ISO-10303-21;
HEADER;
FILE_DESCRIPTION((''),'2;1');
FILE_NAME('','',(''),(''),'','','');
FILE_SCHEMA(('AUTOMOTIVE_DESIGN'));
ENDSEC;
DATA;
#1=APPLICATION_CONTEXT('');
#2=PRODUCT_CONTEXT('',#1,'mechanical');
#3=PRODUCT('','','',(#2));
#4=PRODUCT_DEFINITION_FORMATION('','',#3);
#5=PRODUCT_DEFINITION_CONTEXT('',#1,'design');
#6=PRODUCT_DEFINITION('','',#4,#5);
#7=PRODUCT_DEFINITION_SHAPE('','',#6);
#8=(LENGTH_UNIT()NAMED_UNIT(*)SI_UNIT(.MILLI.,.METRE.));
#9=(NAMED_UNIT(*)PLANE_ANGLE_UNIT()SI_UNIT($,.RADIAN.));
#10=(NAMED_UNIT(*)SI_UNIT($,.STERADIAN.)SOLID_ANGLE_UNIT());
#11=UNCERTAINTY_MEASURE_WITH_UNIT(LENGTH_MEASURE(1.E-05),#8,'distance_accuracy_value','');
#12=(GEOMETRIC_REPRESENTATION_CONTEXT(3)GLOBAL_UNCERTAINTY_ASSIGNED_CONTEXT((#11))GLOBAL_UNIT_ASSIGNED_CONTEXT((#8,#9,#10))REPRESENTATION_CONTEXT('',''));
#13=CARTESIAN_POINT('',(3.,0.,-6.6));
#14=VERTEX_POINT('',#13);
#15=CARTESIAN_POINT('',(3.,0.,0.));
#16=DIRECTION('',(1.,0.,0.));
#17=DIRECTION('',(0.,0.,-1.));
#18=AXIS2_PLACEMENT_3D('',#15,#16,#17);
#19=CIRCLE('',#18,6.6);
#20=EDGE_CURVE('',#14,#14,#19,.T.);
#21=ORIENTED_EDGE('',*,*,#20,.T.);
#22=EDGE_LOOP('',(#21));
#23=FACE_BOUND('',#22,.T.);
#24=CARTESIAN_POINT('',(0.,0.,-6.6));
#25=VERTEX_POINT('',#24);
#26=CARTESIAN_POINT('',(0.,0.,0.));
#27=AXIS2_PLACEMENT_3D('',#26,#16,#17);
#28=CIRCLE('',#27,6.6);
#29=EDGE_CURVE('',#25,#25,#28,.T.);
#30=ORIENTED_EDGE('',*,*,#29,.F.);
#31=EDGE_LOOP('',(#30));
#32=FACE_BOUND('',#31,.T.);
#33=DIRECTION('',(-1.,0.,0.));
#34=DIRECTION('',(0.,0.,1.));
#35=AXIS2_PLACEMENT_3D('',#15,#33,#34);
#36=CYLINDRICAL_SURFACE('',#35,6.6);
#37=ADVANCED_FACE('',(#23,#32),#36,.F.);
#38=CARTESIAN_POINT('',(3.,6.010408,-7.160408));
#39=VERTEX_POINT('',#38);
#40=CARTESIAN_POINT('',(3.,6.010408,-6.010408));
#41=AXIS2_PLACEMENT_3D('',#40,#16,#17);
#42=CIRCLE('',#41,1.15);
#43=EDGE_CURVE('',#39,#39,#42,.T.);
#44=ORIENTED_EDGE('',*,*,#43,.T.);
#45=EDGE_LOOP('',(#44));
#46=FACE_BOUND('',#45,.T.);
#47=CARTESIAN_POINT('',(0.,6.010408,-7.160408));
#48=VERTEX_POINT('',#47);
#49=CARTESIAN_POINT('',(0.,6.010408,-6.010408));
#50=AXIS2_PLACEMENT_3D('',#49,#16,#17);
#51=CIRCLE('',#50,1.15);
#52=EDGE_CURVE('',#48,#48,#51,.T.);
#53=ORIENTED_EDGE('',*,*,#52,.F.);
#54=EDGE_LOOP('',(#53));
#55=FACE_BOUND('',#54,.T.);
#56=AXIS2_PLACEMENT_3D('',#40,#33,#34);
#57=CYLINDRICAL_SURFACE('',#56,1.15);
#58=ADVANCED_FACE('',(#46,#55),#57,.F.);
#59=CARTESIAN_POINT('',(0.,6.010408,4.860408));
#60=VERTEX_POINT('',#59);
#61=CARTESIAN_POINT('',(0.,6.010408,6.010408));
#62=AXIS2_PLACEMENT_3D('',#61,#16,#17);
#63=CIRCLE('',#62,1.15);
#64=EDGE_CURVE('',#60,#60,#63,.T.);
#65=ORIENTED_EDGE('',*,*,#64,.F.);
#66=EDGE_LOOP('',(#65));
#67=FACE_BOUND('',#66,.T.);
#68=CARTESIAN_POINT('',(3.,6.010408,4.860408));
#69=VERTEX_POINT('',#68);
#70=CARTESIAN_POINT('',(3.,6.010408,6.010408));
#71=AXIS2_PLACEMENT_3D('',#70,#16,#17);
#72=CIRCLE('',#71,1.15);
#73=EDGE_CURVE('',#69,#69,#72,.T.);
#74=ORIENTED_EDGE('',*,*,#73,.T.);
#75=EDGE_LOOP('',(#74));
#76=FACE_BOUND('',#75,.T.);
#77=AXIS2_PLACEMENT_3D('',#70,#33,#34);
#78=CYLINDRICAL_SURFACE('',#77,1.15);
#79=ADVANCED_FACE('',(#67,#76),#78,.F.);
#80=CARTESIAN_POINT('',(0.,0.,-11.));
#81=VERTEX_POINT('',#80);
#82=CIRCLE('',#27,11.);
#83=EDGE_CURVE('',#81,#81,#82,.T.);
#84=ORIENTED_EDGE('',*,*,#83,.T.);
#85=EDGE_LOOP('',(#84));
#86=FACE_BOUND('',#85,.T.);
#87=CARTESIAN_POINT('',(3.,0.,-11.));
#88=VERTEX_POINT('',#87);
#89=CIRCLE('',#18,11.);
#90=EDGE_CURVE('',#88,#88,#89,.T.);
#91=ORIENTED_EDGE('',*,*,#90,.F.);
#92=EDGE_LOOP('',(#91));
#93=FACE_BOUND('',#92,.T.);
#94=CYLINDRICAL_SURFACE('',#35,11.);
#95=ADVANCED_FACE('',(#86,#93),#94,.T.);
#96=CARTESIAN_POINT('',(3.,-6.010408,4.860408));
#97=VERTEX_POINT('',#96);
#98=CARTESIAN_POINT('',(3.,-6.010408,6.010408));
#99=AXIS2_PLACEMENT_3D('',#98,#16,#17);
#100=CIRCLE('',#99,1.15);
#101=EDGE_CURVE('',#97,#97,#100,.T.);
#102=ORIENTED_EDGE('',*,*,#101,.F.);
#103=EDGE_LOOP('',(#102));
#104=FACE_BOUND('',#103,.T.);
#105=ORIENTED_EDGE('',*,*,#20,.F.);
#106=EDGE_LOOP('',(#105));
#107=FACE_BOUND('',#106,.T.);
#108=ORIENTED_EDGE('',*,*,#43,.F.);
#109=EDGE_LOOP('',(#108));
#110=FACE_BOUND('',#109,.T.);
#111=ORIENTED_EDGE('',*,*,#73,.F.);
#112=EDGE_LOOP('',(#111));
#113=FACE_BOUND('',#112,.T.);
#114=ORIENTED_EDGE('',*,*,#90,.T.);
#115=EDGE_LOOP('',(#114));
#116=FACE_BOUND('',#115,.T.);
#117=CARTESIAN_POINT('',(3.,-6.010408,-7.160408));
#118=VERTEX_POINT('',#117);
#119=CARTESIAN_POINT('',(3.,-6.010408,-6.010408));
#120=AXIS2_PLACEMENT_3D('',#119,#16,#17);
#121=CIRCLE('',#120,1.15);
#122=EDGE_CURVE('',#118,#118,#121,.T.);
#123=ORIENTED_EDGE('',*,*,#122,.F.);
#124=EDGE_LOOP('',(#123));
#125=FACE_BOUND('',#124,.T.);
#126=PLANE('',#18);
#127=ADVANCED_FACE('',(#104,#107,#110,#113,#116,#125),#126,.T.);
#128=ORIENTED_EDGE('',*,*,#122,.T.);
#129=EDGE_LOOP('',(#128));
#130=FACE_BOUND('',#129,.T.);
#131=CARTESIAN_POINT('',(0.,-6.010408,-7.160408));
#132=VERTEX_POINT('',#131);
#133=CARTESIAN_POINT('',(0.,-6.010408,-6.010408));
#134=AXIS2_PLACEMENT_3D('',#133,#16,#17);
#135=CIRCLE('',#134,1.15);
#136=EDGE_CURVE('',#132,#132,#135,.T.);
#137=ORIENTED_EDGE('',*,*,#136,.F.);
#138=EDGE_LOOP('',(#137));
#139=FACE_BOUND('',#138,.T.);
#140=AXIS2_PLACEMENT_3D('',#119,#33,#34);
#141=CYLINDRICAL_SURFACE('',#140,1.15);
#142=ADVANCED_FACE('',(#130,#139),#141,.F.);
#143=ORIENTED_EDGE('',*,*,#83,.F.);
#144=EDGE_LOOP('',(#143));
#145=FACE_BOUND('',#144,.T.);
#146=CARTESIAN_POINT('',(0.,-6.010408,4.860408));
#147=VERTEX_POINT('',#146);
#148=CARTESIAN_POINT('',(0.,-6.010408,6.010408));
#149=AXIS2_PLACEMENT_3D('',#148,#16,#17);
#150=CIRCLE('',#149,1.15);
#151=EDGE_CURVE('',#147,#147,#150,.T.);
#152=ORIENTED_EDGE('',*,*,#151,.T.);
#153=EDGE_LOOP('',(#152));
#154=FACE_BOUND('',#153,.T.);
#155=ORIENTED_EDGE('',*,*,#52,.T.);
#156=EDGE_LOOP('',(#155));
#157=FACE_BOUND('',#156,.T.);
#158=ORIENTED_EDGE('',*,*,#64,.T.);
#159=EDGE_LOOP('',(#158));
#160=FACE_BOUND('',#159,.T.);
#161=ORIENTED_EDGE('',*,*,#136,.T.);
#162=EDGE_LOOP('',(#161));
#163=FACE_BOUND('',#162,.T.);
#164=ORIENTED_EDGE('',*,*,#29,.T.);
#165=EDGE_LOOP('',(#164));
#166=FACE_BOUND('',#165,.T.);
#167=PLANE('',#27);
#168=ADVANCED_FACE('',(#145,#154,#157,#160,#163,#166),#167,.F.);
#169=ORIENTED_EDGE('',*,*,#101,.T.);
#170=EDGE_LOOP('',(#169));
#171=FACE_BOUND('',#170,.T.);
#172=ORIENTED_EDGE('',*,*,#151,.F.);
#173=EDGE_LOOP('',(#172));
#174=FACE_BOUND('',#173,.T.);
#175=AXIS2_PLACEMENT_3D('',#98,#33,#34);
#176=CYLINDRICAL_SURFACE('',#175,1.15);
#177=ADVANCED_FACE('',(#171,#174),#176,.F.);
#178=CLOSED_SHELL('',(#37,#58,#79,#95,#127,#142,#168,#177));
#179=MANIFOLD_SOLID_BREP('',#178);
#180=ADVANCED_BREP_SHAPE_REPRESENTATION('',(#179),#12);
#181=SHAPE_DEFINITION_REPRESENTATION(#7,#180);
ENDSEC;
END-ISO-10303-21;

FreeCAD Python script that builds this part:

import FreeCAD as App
import Part
import Sketcher
Q = App.Units.Quantity

doc = App.newDocument("Part")
params = doc.addObject("Spreadsheet::Sheet", "Params")
for row, (alias, value) in enumerate([
    ("sketch1_diameter", "22 mm"),
    ("sketch1_diameter2", "13.2 mm"),
    ("pad1_length", "3 mm"),
    ("sketch2_diameter", "2.3 mm"),
], start=1):
    params.set(f"A{row}", alias)
    params.set(f"B{row}", "=" + value)
    params.setAlias(f"B{row}", alias)

body = doc.addObject("PartDesign::Body", "Body")

# Sketch on YZ plane
sketch1 = body.newObject("Sketcher::SketchObject", "Sketch")
sketch1.AttachmentSupport = (doc.getObject("YZ_Plane"), [""])
sketch1.MapMode = "FlatFace"
sketch1.addGeometry(Part.Circle(App.Vector(0, 0, 0), App.Vector(0, 0, 1), 11), False)
sketch1.addGeometry(Part.Circle(App.Vector(0, 0, 0), App.Vector(0, 0, 1), 6.6), False)
sketch1.addConstraint(Sketcher.Constraint("Coincident", 0, 3, -1, 1))
sketch1.addConstraint(Sketcher.Constraint("Coincident", 1, 3, -1, 1))
sketch1.addConstraint(Sketcher.Constraint("Diameter", 0, Q("22 mm")))
sketch1.addConstraint(Sketcher.Constraint("Diameter", 1, Q("13.2 mm")))
sketch1.setExpression("Constraints[2]", "Params.sketch1_diameter")
sketch1.setExpression("Constraints[3]", "Params.sketch1_diameter2")
pad1 = body.newObject("PartDesign::Pad", "Pad")
pad1.Profile = sketch1
pad1.setExpression("Length", "Params.pad1_length")

# Sketch on YZ plane
sketch2 = body.newObject("Sketcher::SketchObject", "Sketch001")
sketch2.AttachmentSupport = (doc.getObject("YZ_Plane"), [""])
sketch2.MapMode = "FlatFace"
sketch2.addGeometry(Part.Circle(App.Vector(6.010408, -6.010408, 0), App.Vector(0, 0, 1), 1.15), False)
sketch2.addGeometry(Part.Circle(App.Vector(-6.010408, -6.010408, 0), App.Vector(0, 0, 1), 1.15), False)
sketch2.addGeometry(Part.Circle(App.Vector(-6.010408, 6.010408, 0), App.Vector(0, 0, 1), 1.15), False)
sketch2.addGeometry(Part.Circle(App.Vector(6.010408, 6.010408, 0), App.Vector(0, 0, 1), 1.15), False)
sketch2.addConstraint(Sketcher.Constraint("Equal", 0, 1))
sketch2.addConstraint(Sketcher.Constraint("Equal", 1, 2))
sketch2.addConstraint(Sketcher.Constraint("Equal", 2, 3))
sketch2.addConstraint(Sketcher.Constraint("Symmetric", 0, 3, 2, 3, -1, 1))
sketch2.addConstraint(Sketcher.Constraint("Symmetric", 1, 3, 3, 3, -1, 1))
sketch2.addConstraint(Sketcher.Constraint("Symmetric", 0, 3, 1, 3, -2))
sketch2.addConstraint(Sketcher.Constraint("Diameter", 0, Q("2.3 mm")))
sketch2.addConstraint(Sketcher.Constraint("DistanceX", -1, 1, 0, 3, Q("6.010408 mm")))
sketch2.addConstraint(Sketcher.Constraint("DistanceY", 0, 3, -1, 1, Q("6.010408 mm")))
sketch2.setExpression("Constraints[6]", "Params.sketch2_diameter")
pocket1 = body.newObject("PartDesign::Pocket", "Pocket")
pocket1.Profile = sketch2
pocket1.Type = "ThroughAll"
pocket1.Reversed = True

doc.recompute()
